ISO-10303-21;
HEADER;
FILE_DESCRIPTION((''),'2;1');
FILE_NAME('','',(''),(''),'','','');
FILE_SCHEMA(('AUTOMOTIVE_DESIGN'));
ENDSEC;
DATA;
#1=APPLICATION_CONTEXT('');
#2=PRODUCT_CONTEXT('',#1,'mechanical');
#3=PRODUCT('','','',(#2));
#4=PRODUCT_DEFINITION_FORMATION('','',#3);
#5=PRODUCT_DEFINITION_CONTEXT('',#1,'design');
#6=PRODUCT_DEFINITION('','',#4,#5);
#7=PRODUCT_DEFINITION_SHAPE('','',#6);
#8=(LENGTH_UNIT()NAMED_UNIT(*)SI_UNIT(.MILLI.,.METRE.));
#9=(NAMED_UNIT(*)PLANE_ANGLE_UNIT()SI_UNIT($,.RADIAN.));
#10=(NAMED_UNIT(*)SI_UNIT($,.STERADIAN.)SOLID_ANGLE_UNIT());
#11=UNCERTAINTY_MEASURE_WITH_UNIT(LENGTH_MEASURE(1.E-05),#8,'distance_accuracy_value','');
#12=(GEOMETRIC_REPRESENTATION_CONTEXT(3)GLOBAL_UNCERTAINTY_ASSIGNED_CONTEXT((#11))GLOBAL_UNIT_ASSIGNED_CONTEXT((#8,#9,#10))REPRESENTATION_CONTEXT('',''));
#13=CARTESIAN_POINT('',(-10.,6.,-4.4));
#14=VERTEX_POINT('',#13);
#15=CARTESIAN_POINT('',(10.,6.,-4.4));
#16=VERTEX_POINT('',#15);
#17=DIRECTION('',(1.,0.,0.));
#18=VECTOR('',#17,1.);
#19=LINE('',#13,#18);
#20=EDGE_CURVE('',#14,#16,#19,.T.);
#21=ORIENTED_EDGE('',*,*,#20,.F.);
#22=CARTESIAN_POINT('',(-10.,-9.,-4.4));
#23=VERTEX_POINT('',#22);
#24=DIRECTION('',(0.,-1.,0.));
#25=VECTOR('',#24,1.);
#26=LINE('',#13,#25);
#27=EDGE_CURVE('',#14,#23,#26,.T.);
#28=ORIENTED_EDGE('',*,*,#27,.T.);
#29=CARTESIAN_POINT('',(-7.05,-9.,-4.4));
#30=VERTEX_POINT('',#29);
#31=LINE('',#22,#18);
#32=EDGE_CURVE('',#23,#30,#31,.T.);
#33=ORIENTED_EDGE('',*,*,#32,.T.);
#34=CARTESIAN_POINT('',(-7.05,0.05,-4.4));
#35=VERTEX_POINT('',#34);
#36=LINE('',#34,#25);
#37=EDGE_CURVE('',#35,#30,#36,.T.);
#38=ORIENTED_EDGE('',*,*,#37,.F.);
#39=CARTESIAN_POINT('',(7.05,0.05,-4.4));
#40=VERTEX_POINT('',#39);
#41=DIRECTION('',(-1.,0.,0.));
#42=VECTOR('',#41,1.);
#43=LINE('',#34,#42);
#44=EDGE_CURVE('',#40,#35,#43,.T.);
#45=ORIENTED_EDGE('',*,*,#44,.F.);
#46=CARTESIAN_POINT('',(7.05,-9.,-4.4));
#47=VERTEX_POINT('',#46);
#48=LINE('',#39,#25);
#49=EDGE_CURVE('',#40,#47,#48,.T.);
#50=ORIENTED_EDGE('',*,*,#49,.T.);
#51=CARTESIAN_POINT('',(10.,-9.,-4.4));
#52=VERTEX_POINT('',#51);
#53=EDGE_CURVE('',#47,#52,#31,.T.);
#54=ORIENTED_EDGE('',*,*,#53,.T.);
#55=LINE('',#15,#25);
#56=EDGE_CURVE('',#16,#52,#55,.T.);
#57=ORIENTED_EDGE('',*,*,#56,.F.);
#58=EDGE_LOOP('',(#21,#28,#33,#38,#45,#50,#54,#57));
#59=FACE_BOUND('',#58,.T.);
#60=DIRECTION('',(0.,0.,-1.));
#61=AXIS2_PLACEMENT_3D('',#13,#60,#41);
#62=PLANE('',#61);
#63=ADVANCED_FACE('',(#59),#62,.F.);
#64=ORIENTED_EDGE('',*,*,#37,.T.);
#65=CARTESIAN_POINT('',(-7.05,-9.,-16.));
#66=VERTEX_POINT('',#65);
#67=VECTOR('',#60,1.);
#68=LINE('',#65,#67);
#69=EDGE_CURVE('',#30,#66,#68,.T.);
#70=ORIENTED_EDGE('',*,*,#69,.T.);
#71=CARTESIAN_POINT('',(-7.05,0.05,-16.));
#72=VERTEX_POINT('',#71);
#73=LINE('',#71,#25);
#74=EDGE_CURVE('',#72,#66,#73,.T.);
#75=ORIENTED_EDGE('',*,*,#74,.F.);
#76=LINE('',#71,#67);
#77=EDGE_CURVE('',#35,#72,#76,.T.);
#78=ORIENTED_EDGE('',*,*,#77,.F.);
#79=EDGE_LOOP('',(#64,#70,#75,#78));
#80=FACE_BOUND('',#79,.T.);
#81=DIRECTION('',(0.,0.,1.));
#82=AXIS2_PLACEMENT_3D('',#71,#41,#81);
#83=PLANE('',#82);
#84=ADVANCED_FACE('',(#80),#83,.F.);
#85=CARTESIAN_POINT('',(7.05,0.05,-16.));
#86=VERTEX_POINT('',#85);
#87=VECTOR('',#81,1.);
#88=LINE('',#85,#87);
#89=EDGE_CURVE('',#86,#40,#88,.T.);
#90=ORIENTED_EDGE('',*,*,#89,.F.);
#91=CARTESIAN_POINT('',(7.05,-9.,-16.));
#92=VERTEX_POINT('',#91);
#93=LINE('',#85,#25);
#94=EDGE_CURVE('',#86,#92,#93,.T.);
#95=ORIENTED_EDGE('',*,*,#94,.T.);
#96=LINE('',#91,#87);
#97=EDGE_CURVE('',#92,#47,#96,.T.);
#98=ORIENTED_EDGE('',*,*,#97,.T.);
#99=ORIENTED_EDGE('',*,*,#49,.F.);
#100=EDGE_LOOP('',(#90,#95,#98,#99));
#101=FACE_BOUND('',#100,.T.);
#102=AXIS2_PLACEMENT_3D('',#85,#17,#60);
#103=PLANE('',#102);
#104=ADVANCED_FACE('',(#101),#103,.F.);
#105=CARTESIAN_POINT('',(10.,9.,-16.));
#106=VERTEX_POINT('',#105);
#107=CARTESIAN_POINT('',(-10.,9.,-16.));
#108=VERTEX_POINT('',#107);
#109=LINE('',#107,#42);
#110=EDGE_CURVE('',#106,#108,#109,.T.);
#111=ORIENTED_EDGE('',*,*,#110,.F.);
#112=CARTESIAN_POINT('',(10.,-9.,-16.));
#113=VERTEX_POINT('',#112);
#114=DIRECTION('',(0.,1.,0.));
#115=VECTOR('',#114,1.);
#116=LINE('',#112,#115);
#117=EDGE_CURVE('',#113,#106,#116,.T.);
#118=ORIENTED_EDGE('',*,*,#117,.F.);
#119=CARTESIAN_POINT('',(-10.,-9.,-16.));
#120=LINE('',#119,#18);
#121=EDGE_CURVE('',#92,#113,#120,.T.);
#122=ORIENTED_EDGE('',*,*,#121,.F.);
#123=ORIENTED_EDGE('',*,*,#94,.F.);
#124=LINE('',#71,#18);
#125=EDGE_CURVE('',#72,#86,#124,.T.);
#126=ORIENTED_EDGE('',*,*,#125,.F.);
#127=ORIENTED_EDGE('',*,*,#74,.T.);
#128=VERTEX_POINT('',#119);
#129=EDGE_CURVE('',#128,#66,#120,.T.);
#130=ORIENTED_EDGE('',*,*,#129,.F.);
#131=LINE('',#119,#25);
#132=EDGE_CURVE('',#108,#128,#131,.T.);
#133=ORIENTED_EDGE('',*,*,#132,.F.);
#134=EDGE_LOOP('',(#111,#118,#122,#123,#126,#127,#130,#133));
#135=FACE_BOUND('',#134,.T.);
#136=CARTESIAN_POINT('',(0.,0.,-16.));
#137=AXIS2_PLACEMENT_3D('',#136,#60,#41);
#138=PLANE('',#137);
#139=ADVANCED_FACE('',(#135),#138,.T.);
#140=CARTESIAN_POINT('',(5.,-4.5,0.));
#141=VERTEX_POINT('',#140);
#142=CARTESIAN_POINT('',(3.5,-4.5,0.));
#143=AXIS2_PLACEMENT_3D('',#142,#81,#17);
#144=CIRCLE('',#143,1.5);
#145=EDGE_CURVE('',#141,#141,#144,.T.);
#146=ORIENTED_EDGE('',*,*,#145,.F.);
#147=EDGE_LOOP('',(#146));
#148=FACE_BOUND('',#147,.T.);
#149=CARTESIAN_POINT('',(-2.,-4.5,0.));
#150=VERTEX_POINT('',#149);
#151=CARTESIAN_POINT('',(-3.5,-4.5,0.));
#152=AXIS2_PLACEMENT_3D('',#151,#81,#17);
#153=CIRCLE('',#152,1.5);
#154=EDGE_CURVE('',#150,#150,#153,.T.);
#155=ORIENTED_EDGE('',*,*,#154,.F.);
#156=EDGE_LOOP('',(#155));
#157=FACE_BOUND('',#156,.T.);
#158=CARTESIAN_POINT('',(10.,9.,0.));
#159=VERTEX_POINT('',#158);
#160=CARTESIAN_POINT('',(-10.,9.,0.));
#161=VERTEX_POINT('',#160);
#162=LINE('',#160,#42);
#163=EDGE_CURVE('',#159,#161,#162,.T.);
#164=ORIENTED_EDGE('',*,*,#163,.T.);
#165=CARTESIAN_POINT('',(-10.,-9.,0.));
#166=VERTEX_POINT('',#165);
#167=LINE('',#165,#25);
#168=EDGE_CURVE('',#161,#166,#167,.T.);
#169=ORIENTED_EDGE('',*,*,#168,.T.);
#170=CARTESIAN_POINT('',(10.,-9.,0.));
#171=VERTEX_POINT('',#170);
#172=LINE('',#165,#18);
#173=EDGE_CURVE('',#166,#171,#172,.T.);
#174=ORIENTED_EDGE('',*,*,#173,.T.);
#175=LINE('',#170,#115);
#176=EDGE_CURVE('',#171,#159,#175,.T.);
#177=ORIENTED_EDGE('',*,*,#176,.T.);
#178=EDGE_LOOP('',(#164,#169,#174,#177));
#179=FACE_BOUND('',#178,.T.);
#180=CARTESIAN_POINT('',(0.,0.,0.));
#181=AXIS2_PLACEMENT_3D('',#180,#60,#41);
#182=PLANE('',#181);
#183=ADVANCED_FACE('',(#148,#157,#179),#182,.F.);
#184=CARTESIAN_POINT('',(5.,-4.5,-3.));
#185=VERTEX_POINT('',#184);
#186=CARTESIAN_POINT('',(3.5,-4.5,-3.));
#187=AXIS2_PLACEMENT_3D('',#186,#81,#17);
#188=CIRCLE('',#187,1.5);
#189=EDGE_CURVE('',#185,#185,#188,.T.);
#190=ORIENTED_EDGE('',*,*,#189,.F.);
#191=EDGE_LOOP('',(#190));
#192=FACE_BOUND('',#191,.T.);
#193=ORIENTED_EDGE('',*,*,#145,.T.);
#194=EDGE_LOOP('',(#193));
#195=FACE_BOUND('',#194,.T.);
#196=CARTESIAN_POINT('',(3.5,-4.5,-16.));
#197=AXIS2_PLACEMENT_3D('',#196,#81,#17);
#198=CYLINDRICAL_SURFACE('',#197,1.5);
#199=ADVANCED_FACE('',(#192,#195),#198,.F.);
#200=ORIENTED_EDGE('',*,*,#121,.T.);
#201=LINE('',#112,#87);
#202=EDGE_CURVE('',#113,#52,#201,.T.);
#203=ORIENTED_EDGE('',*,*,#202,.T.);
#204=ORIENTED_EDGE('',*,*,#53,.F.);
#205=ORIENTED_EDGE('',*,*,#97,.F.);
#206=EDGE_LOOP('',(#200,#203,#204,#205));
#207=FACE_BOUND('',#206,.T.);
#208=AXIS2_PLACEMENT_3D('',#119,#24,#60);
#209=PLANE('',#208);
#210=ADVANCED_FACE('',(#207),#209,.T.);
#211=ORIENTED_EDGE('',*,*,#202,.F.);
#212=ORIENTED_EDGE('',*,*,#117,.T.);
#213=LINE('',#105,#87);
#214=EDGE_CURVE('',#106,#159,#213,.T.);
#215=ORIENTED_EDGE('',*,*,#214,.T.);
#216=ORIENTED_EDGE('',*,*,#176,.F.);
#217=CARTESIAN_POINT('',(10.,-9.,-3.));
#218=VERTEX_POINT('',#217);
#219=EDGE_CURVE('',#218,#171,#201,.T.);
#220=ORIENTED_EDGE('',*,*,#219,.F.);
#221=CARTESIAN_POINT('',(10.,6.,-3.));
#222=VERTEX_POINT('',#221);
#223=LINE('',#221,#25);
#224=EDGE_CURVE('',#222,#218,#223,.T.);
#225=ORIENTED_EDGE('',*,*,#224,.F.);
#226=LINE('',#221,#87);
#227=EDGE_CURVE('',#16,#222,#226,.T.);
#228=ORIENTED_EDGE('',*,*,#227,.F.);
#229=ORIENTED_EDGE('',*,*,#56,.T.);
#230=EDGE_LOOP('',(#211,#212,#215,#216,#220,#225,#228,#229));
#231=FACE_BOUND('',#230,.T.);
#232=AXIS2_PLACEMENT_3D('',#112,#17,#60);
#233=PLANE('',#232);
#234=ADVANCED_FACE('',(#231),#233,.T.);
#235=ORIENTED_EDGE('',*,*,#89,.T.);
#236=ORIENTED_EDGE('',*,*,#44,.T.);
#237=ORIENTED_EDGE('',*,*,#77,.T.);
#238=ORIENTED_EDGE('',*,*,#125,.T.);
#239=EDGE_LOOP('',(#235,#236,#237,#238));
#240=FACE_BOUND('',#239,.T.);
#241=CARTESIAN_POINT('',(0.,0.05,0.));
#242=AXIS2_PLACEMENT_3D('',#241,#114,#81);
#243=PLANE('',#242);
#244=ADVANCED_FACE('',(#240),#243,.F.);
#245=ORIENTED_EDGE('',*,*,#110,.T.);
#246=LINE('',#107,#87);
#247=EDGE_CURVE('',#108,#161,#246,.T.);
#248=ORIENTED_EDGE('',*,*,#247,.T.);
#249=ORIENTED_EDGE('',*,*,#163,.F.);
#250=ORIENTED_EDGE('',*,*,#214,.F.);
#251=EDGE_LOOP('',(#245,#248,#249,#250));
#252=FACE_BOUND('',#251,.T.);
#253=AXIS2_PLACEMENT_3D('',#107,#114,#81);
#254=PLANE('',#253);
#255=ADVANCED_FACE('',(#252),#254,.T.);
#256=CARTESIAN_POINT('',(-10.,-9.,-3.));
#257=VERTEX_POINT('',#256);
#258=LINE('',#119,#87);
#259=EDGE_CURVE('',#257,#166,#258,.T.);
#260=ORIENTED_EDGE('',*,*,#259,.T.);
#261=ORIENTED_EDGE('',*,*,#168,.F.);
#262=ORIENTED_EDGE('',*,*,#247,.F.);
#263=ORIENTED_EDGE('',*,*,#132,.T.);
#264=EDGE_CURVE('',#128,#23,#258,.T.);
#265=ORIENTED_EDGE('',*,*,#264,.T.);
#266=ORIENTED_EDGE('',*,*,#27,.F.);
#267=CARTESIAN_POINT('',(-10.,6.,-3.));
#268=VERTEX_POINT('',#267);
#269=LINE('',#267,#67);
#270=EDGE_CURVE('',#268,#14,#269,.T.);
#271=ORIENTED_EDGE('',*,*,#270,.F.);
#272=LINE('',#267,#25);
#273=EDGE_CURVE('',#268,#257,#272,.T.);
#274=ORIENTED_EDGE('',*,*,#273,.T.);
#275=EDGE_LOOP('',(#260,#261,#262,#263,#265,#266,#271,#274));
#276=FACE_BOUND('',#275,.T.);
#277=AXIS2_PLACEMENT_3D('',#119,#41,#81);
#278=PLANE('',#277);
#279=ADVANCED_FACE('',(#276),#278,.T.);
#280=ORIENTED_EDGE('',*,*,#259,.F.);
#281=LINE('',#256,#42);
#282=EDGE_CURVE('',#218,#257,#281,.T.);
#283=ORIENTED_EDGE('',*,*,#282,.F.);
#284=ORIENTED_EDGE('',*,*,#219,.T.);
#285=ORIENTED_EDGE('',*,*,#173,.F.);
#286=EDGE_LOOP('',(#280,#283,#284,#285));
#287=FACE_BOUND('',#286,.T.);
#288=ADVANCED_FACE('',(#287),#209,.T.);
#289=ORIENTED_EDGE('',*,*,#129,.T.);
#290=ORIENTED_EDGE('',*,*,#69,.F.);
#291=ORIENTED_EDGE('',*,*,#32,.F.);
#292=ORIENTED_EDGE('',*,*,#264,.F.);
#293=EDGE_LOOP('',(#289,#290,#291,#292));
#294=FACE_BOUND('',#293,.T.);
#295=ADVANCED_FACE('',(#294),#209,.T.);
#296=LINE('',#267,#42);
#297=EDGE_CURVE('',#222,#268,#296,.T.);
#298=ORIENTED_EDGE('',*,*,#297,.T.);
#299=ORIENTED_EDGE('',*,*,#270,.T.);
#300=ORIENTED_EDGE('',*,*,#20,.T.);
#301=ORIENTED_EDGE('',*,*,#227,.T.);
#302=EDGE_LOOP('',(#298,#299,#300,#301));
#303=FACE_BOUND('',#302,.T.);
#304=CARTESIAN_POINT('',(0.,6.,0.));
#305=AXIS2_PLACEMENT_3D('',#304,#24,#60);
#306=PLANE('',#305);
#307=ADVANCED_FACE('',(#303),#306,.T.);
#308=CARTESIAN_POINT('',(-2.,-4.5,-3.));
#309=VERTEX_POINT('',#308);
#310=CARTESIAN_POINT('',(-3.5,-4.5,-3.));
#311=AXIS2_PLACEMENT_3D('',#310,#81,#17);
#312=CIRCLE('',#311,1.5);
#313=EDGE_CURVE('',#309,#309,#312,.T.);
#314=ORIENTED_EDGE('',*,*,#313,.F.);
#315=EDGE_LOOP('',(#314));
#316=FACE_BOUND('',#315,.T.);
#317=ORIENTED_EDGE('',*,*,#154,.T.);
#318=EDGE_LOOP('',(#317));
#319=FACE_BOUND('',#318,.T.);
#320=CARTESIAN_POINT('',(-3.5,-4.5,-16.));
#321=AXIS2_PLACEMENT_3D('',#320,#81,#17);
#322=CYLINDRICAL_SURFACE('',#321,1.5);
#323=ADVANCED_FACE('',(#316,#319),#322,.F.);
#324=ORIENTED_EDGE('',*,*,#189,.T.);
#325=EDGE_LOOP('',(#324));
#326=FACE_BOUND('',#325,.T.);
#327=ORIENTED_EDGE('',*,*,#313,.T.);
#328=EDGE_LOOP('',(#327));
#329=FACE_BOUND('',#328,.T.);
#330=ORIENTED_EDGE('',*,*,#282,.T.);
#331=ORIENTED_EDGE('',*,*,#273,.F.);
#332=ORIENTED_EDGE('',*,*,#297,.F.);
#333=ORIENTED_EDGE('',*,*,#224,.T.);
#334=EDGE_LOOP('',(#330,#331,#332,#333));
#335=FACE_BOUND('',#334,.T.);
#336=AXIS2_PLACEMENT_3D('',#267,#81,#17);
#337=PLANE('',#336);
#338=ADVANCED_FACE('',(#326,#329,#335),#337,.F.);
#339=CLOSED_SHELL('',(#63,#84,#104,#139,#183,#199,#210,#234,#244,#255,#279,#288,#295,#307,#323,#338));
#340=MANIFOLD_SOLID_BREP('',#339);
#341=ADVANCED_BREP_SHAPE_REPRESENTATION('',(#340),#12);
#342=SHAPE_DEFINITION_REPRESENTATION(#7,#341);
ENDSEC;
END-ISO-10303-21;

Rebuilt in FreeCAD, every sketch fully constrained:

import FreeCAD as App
import Part
import Sketcher

V = App.Vector

doc = App.newDocument("Part")
body = doc.addObject("PartDesign::Body", "Body")

sketch1 = body.newObject("Sketcher::SketchObject", "Sketch")
sketch1.AttachmentSupport = (doc.getObject("XY_Plane"), [""])
sketch1.MapMode = "FlatFace"
sketch1.addGeometry([
    Part.LineSegment(V(-10, 9, 0), V(-10, -9, 0)),
    Part.LineSegment(V(-10, -9, 0), V(10, -9, 0)),
    Part.LineSegment(V(10, -9, 0), V(10, 9, 0)),
    Part.LineSegment(V(10, 9, 0), V(-10, 9, 0)),
], False)
sketch1.addConstraint([
    Sketcher.Constraint("Coincident", 0, 2, 1, 1),
    Sketcher.Constraint("Coincident", 1, 2, 2, 1),
    Sketcher.Constraint("Coincident", 2, 2, 3, 1),
    Sketcher.Constraint("Coincident", 3, 2, 0, 1),
    Sketcher.Constraint("Vertical", 0),
    Sketcher.Constraint("Horizontal", 1),
    Sketcher.Constraint("Vertical", 2),
    Sketcher.Constraint("Horizontal", 3),
    Sketcher.Constraint("Symmetric", 0, 2, 2, 2, -1, 1),
    Sketcher.Constraint("DistanceX", 1, 1, 1, 2, 20.0),
    Sketcher.Constraint("DistanceY", 0, 2, 0, 1, 18.0),
])
pad1 = body.newObject("PartDesign::Pad", "Pad")
pad1.Profile = sketch1
pad1.Length = 16
pad1.Reversed = True

sketch2 = body.newObject("Sketcher::SketchObject", "Sketch001")
sketch2.AttachmentSupport = (doc.getObject("XZ_Plane"), [""])
sketch2.MapMode = "FlatFace"
sketch2.AttachmentOffset = App.Placement(V(0, 0, 9), App.Rotation())
sketch2.addGeometry([
    Part.LineSegment(V(-7, -4, 0), V(-7, -16, 0)),
    Part.LineSegment(V(-7, -16, 0), V(7, -16, 0)),
    Part.LineSegment(V(7, -16, 0), V(7, -4, 0)),
    Part.LineSegment(V(7, -4, 0), V(-7, -4, 0)),
], False)
sketch2.addConstraint([
    Sketcher.Constraint("Coincident", 0, 2, 1, 1),
    Sketcher.Constraint("Coincident", 1, 2, 2, 1),
    Sketcher.Constraint("Coincident", 2, 2, 3, 1),
    Sketcher.Constraint("Coincident", 3, 2, 0, 1),
    Sketcher.Constraint("Vertical", 0),
    Sketcher.Constraint("Horizontal", 1),
    Sketcher.Constraint("Vertical", 2),
    Sketcher.Constraint("Horizontal", 3),
    Sketcher.Constraint("DistanceX", 1, 1, 1, 2, 14.1),
    Sketcher.Constraint("DistanceY", 0, 2, 0, 1, 11.6),
    Sketcher.Constraint("DistanceY", 0, 2, -1, 1, 16.0),
    Sketcher.Constraint("DistanceX", 0, 2, -1, 1, 7.05),
])
pocket1 = body.newObject("PartDesign::Pocket", "Pocket")
pocket1.Profile = sketch2
pocket1.Length = 9.05

sketch3 = body.newObject("Sketcher::SketchObject", "Sketch002")
sketch3.AttachmentSupport = (doc.getObject("XZ_Plane"), [""])
sketch3.MapMode = "FlatFace"
sketch3.AttachmentOffset = App.Placement(V(0, 0, 9), App.Rotation())
sketch3.addGeometry([
    Part.LineSegment(V(-10, -3, 0), V(-10, -4.4, 0)),
    Part.LineSegment(V(-10, -4.4, 0), V(10, -4.4, 0)),
    Part.LineSegment(V(10, -4.4, 0), V(10, -3, 0)),
    Part.LineSegment(V(10, -3, 0), V(-10, -3, 0)),
], False)
sketch3.addConstraint([
    Sketcher.Constraint("Coincident", 0, 2, 1, 1),
    Sketcher.Constraint("Coincident", 1, 2, 2, 1),
    Sketcher.Constraint("Coincident", 2, 2, 3, 1),
    Sketcher.Constraint("Coincident", 3, 2, 0, 1),
    Sketcher.Constraint("Vertical", 0),
    Sketcher.Constraint("Horizontal", 1),
    Sketcher.Constraint("Vertical", 2),
    Sketcher.Constraint("Horizontal", 3),
    Sketcher.Constraint("DistanceX", 1, 1, 1, 2, 20.0),
    Sketcher.Constraint("DistanceY", 0, 2, 0, 1, 1.4),
    Sketcher.Constraint("DistanceX", 0, 2, -1, 1, 10.0),
    Sketcher.Constraint("DistanceY", 2, 2, -1, 1, 3.0),
])
pocket2 = body.newObject("PartDesign::Pocket", "Pocket001")
pocket2.Profile = sketch3
pocket2.Length = 15

sketch4 = body.newObject("Sketcher::SketchObject", "Sketch003")
sketch4.AttachmentSupport = (doc.getObject("XY_Plane"), [""])
sketch4.MapMode = "FlatFace"
sketch4.addGeometry([
    Part.Circle(V(-3.5, -4.5, 0), V(0, 0, 1), 1.5),
    Part.Circle(V(3.5, -4.5, 0), V(0, 0, 1), 1.5),
], False)
sketch4.addConstraint([
    Sketcher.Constraint("Equal", 0, 1),
    Sketcher.Constraint("Symmetric", 0, 3, 1, 3, -2),
    Sketcher.Constraint("Diameter", 0, 3.0),
    Sketcher.Constraint("DistanceX", 0, 3, 1, 3, 7.0),
    Sketcher.Constraint("DistanceY", 0, 3, -1, 1, 4.5),
])
pocket3 = body.newObject("PartDesign::Pocket", "Pocket002")
pocket3.Profile = sketch4
pocket3.Type = "ThroughAll"

doc.recompute()
